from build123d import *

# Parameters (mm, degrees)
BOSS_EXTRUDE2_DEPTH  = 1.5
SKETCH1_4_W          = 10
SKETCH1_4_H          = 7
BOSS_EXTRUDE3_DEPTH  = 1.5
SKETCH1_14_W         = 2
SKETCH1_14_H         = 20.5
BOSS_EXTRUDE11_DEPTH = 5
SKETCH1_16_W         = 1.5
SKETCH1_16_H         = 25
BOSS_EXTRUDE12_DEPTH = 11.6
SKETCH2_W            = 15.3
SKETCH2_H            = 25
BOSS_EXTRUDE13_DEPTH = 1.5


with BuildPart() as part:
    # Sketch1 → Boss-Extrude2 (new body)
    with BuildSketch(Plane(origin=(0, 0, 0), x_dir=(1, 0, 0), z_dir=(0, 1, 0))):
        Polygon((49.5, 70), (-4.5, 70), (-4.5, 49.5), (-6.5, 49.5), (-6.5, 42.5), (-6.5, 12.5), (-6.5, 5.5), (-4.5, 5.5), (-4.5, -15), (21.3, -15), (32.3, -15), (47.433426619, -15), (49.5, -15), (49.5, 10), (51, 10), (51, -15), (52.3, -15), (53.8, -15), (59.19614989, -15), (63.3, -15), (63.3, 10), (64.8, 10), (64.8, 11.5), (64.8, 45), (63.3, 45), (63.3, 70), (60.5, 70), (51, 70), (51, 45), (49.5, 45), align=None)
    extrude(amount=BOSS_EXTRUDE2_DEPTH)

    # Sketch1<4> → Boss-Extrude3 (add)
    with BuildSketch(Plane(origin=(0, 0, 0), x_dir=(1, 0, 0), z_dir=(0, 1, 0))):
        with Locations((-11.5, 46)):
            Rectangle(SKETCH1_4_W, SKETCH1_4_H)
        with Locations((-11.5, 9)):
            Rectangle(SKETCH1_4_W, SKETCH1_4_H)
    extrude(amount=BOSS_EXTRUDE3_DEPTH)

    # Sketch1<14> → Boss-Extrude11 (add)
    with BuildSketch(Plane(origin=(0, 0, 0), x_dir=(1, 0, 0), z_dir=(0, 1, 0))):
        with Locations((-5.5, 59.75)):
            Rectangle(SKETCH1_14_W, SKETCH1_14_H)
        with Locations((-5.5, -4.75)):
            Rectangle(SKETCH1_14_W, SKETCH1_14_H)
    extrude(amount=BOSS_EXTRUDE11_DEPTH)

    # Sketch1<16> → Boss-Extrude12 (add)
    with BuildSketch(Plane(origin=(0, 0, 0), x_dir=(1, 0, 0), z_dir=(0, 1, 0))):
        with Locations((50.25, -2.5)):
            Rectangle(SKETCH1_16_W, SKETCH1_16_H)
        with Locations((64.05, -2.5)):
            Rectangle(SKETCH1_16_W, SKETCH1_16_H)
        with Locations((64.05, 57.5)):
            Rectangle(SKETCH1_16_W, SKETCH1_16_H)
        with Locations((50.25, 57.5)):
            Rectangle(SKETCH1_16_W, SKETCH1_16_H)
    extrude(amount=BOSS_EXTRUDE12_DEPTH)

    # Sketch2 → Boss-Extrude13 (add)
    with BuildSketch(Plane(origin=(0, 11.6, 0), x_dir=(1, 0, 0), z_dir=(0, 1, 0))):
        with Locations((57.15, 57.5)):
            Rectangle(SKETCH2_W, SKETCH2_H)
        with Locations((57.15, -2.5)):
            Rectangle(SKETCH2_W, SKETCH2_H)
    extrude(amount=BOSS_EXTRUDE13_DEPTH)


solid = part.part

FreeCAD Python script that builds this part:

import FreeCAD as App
import Part
import Sketcher

doc = App.newDocument("Part")
body = doc.addObject("PartDesign::Body", "Body")

sketch1 = doc.addObject("Sketcher::SketchObject", "Sketch")
body.addObject(sketch1)
sketch1.AttachmentSupport = (doc.XZ_Plane, [""])
sketch1.MapMode = "FlatFace"
sketch1.addGeometry(Part.LineSegment(App.Vector(49.5, -70, 0), App.Vector(-4.5, -70, 0)), False)
sketch1.addGeometry(Part.LineSegment(App.Vector(-4.5, -70, 0), App.Vector(-4.5, -49.5, 0)), False)
sketch1.addGeometry(Part.LineSegment(App.Vector(-4.5, -49.5, 0), App.Vector(-6.5, -49.5, 0)), False)
sketch1.addGeometry(Part.LineSegment(App.Vector(-6.5, -49.5, 0), App.Vector(-6.5, -5.5, 0)), False)
sketch1.addGeometry(Part.LineSegment(App.Vector(-6.5, -5.5, 0), App.Vector(-4.5, -5.5, 0)), False)
sketch1.addGeometry(Part.LineSegment(App.Vector(-4.5, -5.5, 0), App.Vector(-4.5, 15, 0)), False)
sketch1.addGeometry(Part.LineSegment(App.Vector(-4.5, 15, 0), App.Vector(49.5, 15, 0)), False)
sketch1.addGeometry(Part.LineSegment(App.Vector(49.5, 15, 0), App.Vector(49.5, -10, 0)), False)
sketch1.addGeometry(Part.LineSegment(App.Vector(49.5, -10, 0), App.Vector(51, -10, 0)), False)
sketch1.addGeometry(Part.LineSegment(App.Vector(51, -10, 0), App.Vector(51, 15, 0)), False)
sketch1.addGeometry(Part.LineSegment(App.Vector(51, 15, 0), App.Vector(63.3, 15, 0)), False)
sketch1.addGeometry(Part.LineSegment(App.Vector(63.3, 15, 0), App.Vector(63.3, -10, 0)), False)
sketch1.addGeometry(Part.LineSegment(App.Vector(63.3, -10, 0), App.Vector(64.8, -10, 0)), False)
sketch1.addGeometry(Part.LineSegment(App.Vector(64.8, -10, 0), App.Vector(64.8, -45, 0)), False)
sketch1.addGeometry(Part.LineSegment(App.Vector(64.8, -45, 0), App.Vector(63.3, -45, 0)), False)
sketch1.addGeometry(Part.LineSegment(App.Vector(63.3, -45, 0), App.Vector(63.3, -70, 0)), False)
sketch1.addGeometry(Part.LineSegment(App.Vector(63.3, -70, 0), App.Vector(51, -70, 0)), False)
sketch1.addGeometry(Part.LineSegment(App.Vector(51, -70, 0), App.Vector(51, -45, 0)), False)
sketch1.addGeometry(Part.LineSegment(App.Vector(51, -45, 0), App.Vector(49.5, -45, 0)), False)
sketch1.addGeometry(Part.LineSegment(App.Vector(49.5, -45, 0), App.Vector(49.5, -70, 0)), False)
sketch1.addConstraint(Sketcher.Constraint("Coincident", 0, 2, 1, 1))
sketch1.addConstraint(Sketcher.Constraint("Coincident", 1, 2, 2, 1))
sketch1.addConstraint(Sketcher.Constraint("Coincident", 2, 2, 3, 1))
sketch1.addConstraint(Sketcher.Constraint("Coincident", 3, 2, 4, 1))
sketch1.addConstraint(Sketcher.Constraint("Coincident", 4, 2, 5, 1))
sketch1.addConstraint(Sketcher.Constraint("Coincident", 5, 2, 6, 1))
sketch1.addConstraint(Sketcher.Constraint("Coincident", 6, 2, 7, 1))
sketch1.addConstraint(Sketcher.Constraint("Coincident", 7, 2, 8, 1))
sketch1.addConstraint(Sketcher.Constraint("Coincident", 8, 2, 9, 1))
sketch1.addConstraint(Sketcher.Constraint("Coincident", 9, 2, 10, 1))
sketch1.addConstraint(Sketcher.Constraint("Coincident", 10, 2, 11, 1))
sketch1.addConstraint(Sketcher.Constraint("Coincident", 11, 2, 12, 1))
sketch1.addConstraint(Sketcher.Constraint("Coincident", 12, 2, 13, 1))
sketch1.addConstraint(Sketcher.Constraint("Coincident", 13, 2, 14, 1))
sketch1.addConstraint(Sketcher.Constraint("Coincident", 14, 2, 15, 1))
sketch1.addConstraint(Sketcher.Constraint("Coincident", 15, 2, 16, 1))
sketch1.addConstraint(Sketcher.Constraint("Coincident", 16, 2, 17, 1))
sketch1.addConstraint(Sketcher.Constraint("Coincident", 17, 2, 18, 1))
sketch1.addConstraint(Sketcher.Constraint("Coincident", 18, 2, 19, 1))
sketch1.addConstraint(Sketcher.Constraint("Coincident", 19, 2, 0, 1))
sketch1.addConstraint(Sketcher.Constraint("Horizontal", 0))
sketch1.addConstraint(Sketcher.Constraint("Vertical", 1))
sketch1.addConstraint(Sketcher.Constraint("Horizontal", 2))
sketch1.addConstraint(Sketcher.Constraint("Vertical", 3))
sketch1.addConstraint(Sketcher.Constraint("Horizontal", 4))
sketch1.addConstraint(Sketcher.Constraint("Vertical", 5))
sketch1.addConstraint(Sketcher.Constraint("Horizontal", 6))
sketch1.addConstraint(Sketcher.Constraint("Vertical", 7))
sketch1.addConstraint(Sketcher.Constraint("Horizontal", 8))
sketch1.addConstraint(Sketcher.Constraint("Vertical", 9))
sketch1.addConstraint(Sketcher.Constraint("Horizontal", 10))
sketch1.addConstraint(Sketcher.Constraint("Vertical", 11))
sketch1.addConstraint(Sketcher.Constraint("Horizontal", 12))
sketch1.addConstraint(Sketcher.Constraint("Vertical", 13))
sketch1.addConstraint(Sketcher.Constraint("Horizontal", 14))
sketch1.addConstraint(Sketcher.Constraint("Vertical", 15))
sketch1.addConstraint(Sketcher.Constraint("Horizontal", 16))
sketch1.addConstraint(Sketcher.Constraint("Vertical", 17))
sketch1.addConstraint(Sketcher.Constraint("Horizontal", 18))
sketch1.addConstraint(Sketcher.Constraint("Vertical", 19))
sketch1.addConstraint(Sketcher.Constraint("Horizontal", 6, 2, 9, 2))
sketch1.addConstraint(Sketcher.Constraint("Horizontal", 8, 2, 11, 2))
sketch1.addConstraint(Sketcher.Constraint("Horizontal", 0, 2, 15, 2))
sketch1.addConstraint(Sketcher.Constraint("Horizontal", 14, 2, 17, 2))
sketch1.addConstraint(Sketcher.Constraint("Vertical", 1, 2, 4, 2))
sketch1.addConstraint(Sketcher.Constraint("Vertical", 11, 2, 14, 2))
sketch1.addConstraint(Sketcher.Constraint("Vertical", 9, 2, 16, 2))
sketch1.addConstraint(Sketcher.Constraint("Vertical", 7, 2, 18, 2))
sketch1.addConstraint(Sketcher.Constraint("Equal", 8, 12))
sketch1.addConstraint(Sketcher.Constraint("Equal", 1, 5))
sketch1.addConstraint(Sketcher.Constraint("Equal", 11, 15))
sketch1.addConstraint(Sketcher.Constraint("DistanceX", 0, 2, 0, 1, 54.0))
sketch1.addConstraint(Sketcher.Constraint("DistanceX", 2, 2, 2, 1, 2.0))
sketch1.addConstraint(Sketcher.Constraint("DistanceY", 3, 1, 3, 2, 44.0))
sketch1.addConstraint(Sketcher.Constraint("DistanceY", 7, 2, 7, 1, 25.0))
sketch1.addConstraint(Sketcher.Constraint("DistanceY", 13, 2, 13, 1, 35.0))
sketch1.addConstraint(Sketcher.Constraint("DistanceX", 8, 1, 8, 2, 1.5))
sketch1.addConstraint(Sketcher.Constraint("DistanceX", 10, 1, 10, 2, 12.3))
sketch1.addConstraint(Sketcher.Constraint("DistanceY", 0, 2, -1, 1, 70.0))
sketch1.addConstraint(Sketcher.Constraint("DistanceX", -1, 1, 8, 2, 51.0))
pad1 = doc.addObject("PartDesign::Pad", "Pad")
body.addObject(pad1)
pad1.Profile = sketch1
pad1.Length = 1.5
pad1.Reversed = True

sketch2 = doc.addObject("Sketcher::SketchObject", "Sketch001")
body.addObject(sketch2)
sketch2.AttachmentSupport = (doc.XZ_Plane, [""])
sketch2.MapMode = "FlatFace"
sketch2.addGeometry(Part.LineSegment(App.Vector(-16, -50, 0), App.Vector(-16, -42, 0)), False)
sketch2.addGeometry(Part.LineSegment(App.Vector(-16, -42, 0), App.Vector(-6, -42, 0)), False)
sketch2.addGeometry(Part.LineSegment(App.Vector(-6, -42, 0), App.Vector(-6, -50, 0)), False)
sketch2.addGeometry(Part.LineSegment(App.Vector(-6, -50, 0), App.Vector(-16, -50, 0)), False)
sketch2.addGeometry(Part.LineSegment(App.Vector(-16, -12, 0), App.Vector(-16, -6, 0)), False)
sketch2.addGeometry(Part.LineSegment(App.Vector(-16, -6, 0), App.Vector(-6, -6, 0)), False)
sketch2.addGeometry(Part.LineSegment(App.Vector(-6, -6, 0), App.Vector(-6, -12, 0)), False)
sketch2.addGeometry(Part.LineSegment(App.Vector(-6, -12, 0), App.Vector(-16, -12, 0)), False)
sketch2.addConstraint(Sketcher.Constraint("Coincident", 0, 2, 1, 1))
sketch2.addConstraint(Sketcher.Constraint("Coincident", 1, 2, 2, 1))
sketch2.addConstraint(Sketcher.Constraint("Coincident", 2, 2, 3, 1))
sketch2.addConstraint(Sketcher.Constraint("Coincident", 3, 2, 0, 1))
sketch2.addConstraint(Sketcher.Constraint("Coincident", 4, 2, 5, 1))
sketch2.addConstraint(Sketcher.Constraint("Coincident", 5, 2, 6, 1))
sketch2.addConstraint(Sketcher.Constraint("Coincident", 6, 2, 7, 1))
sketch2.addConstraint(Sketcher.Constraint("Coincident", 7, 2, 4, 1))
sketch2.addConstraint(Sketcher.Constraint("Vertical", 0))
sketch2.addConstraint(Sketcher.Constraint("Horizontal", 1))
sketch2.addConstraint(Sketcher.Constraint("Vertical", 2))
sketch2.addConstraint(Sketcher.Constraint("Horizontal", 3))
sketch2.addConstraint(Sketcher.Constraint("Vertical", 4))
sketch2.addConstraint(Sketcher.Constraint("Horizontal", 5))
sketch2.addConstraint(Sketcher.Constraint("Vertical", 6))
sketch2.addConstraint(Sketcher.Constraint("Horizontal", 7))
sketch2.addConstraint(Sketcher.Constraint("Vertical", 3, 2, 4, 2))
sketch2.addConstraint(Sketcher.Constraint("Vertical", 2, 2, 5, 2))
sketch2.addConstraint(Sketcher.Constraint("Equal", 2, 4))
sketch2.addConstraint(Sketcher.Constraint("DistanceX", 1, 1, 1, 2, 10.0))
sketch2.addConstraint(Sketcher.Constraint("DistanceY", 0, 1, 0, 2, 7.0))
sketch2.addConstraint(Sketcher.Constraint("DistanceY", 0, 2, 4, 2, 37.0))
sketch2.addConstraint(Sketcher.Constraint("DistanceX", 0, 2, -1, 1, 16.5))
sketch2.addConstraint(Sketcher.Constraint("DistanceY", 0, 2, -1, 1, 42.5))
pad2 = doc.addObject("PartDesign::Pad", "Pad001")
body.addObject(pad2)
pad2.Profile = sketch2
pad2.Length = 1.5
pad2.Reversed = True

sketch3 = doc.addObject("Sketcher::SketchObject", "Sketch002")
body.addObject(sketch3)
sketch3.AttachmentSupport = (doc.XZ_Plane, [""])
sketch3.MapMode = "FlatFace"
sketch3.addGeometry(Part.LineSegment(App.Vector(-6.5, -70, 0), App.Vector(-6.5, -49.5, 0)), False)
sketch3.addGeometry(Part.LineSegment(App.Vector(-6.5, -49.5, 0), App.Vector(-4.5, -49.5, 0)), False)
sketch3.addGeometry(Part.LineSegment(App.Vector(-4.5, -49.5, 0), App.Vector(-4.5, -70, 0)), False)
sketch3.addGeometry(Part.LineSegment(App.Vector(-4.5, -70, 0), App.Vector(-6.5, -70, 0)), False)
sketch3.addGeometry(Part.LineSegment(App.Vector(-6.5, -5.5, 0), App.Vector(-6.5, 15, 0)), False)
sketch3.addGeometry(Part.LineSegment(App.Vector(-6.5, 15, 0), App.Vector(-4.5, 15, 0)), False)
sketch3.addGeometry(Part.LineSegment(App.Vector(-4.5, 15, 0), App.Vector(-4.5, -5.5, 0)), False)
sketch3.addGeometry(Part.LineSegment(App.Vector(-4.5, -5.5, 0), App.Vector(-6.5, -5.5, 0)), False)
sketch3.addConstraint(Sketcher.Constraint("Coincident", 0, 2, 1, 1))
sketch3.addConstraint(Sketcher.Constraint("Coincident", 1, 2, 2, 1))
sketch3.addConstraint(Sketcher.Constraint("Coincident", 2, 2, 3, 1))
sketch3.addConstraint(Sketcher.Constraint("Coincident", 3, 2, 0, 1))
sketch3.addConstraint(Sketcher.Constraint("Coincident", 4, 2, 5, 1))
sketch3.addConstraint(Sketcher.Constraint("Coincident", 5, 2, 6, 1))
sketch3.addConstraint(Sketcher.Constraint("Coincident", 6, 2, 7, 1))
sketch3.addConstraint(Sketcher.Constraint("Coincident", 7, 2, 4, 1))
sketch3.addConstraint(Sketcher.Constraint("Vertical", 0))
sketch3.addConstraint(Sketcher.Constraint("Horizontal", 1))
sketch3.addConstraint(Sketcher.Constraint("Vertical", 2))
sketch3.addConstraint(Sketcher.Constraint("Horizontal", 3))
sketch3.addConstraint(Sketcher.Constraint("Vertical", 4))
sketch3.addConstraint(Sketcher.Constraint("Horizontal", 5))
sketch3.addConstraint(Sketcher.Constraint("Vertical", 6))
sketch3.addConstraint(Sketcher.Constraint("Horizontal", 7))
sketch3.addConstraint(Sketcher.Constraint("Vertical", 3, 2, 4, 2))
sketch3.addConstraint(Sketcher.Constraint("Vertical", 2, 2, 5, 2))
sketch3.addConstraint(Sketcher.Constraint("Equal", 2, 4))
sketch3.addConstraint(Sketcher.Constraint("DistanceX", 1, 1, 1, 2, 2.0))
sketch3.addConstraint(Sketcher.Constraint("DistanceY", 0, 1, 0, 2, 20.5))
sketch3.addConstraint(Sketcher.Constraint("DistanceY", 2, 2, -1, 1, 70.0))
sketch3.addConstraint(Sketcher.Constraint("DistanceY", -1, 1, 4, 2, 15.0))
sketch3.addConstraint(Sketcher.Constraint("DistanceX", 0, 2, -1, 1, 6.5))
pad3 = doc.addObject("PartDesign::Pad", "Pad002")
body.addObject(pad3)
pad3.Profile = sketch3
pad3.Length = 5
pad3.Reversed = True

sketch4 = doc.addObject("Sketcher::SketchObject", "Sketch003")
body.addObject(sketch4)
sketch4.AttachmentSupport = (doc.XZ_Plane, [""])
sketch4.MapMode = "FlatFace"
sketch4.addGeometry(Part.LineSegment(App.Vector(49.5, -10, 0), App.Vector(49.5, 15, 0)), False)
sketch4.addGeometry(Part.LineSegment(App.Vector(49.5, 15, 0), App.Vector(51, 15, 0)), False)
sketch4.addGeometry(Part.LineSegment(App.Vector(51, 15, 0), App.Vector(51, -10, 0)), False)
sketch4.addGeometry(Part.LineSegment(App.Vector(51, -10, 0), App.Vector(49.5, -10, 0)), False)
sketch4.addGeometry(Part.LineSegment(App.Vector(63.3, -10, 0), App.Vector(63.3, 15, 0)), False)
sketch4.addGeometry(Part.LineSegment(App.Vector(63.3, 15, 0), App.Vector(64.8, 15, 0)), False)
sketch4.addGeometry(Part.LineSegment(App.Vector(64.8, 15, 0), App.Vector(64.8, -10, 0)), False)
sketch4.addGeometry(Part.LineSegment(App.Vector(64.8, -10, 0), App.Vector(63.3, -10, 0)), False)
sketch4.addGeometry(Part.LineSegment(App.Vector(63.3, -70, 0), App.Vector(63.3, -45, 0)), False)
sketch4.addGeometry(Part.LineSegment(App.Vector(63.3, -45, 0), App.Vector(64.8, -45, 0)), False)
sketch4.addGeometry(Part.LineSegment(App.Vector(64.8, -45, 0), App.Vector(64.8, -70, 0)), False)
sketch4.addGeometry(Part.LineSegment(App.Vector(64.8, -70, 0), App.Vector(63.3, -70, 0)), False)
sketch4.addGeometry(Part.LineSegment(App.Vector(49.5, -70, 0), App.Vector(49.5, -45, 0)), False)
sketch4.addGeometry(Part.LineSegment(App.Vector(49.5, -45, 0), App.Vector(51, -45, 0)), False)
sketch4.addGeometry(Part.LineSegment(App.Vector(51, -45, 0), App.Vector(51, -70, 0)), False)
sketch4.addGeometry(Part.LineSegment(App.Vector(51, -70, 0), App.Vector(49.5, -70, 0)), False)
sketch4.addConstraint(Sketcher.Constraint("Coincident", 0, 2, 1, 1))
sketch4.addConstraint(Sketcher.Constraint("Coincident", 1, 2, 2, 1))
sketch4.addConstraint(Sketcher.Constraint("Coincident", 2, 2, 3, 1))
sketch4.addConstraint(Sketcher.Constraint("Coincident", 3, 2, 0, 1))
sketch4.addConstraint(Sketcher.Constraint("Coincident", 4, 2, 5, 1))
sketch4.addConstraint(Sketcher.Constraint("Coincident", 5, 2, 6, 1))
sketch4.addConstraint(Sketcher.Constraint("Coincident", 6, 2, 7, 1))
sketch4.addConstraint(Sketcher.Constraint("Coincident", 7, 2, 4, 1))
sketch4.addConstraint(Sketcher.Constraint("Coincident", 8, 2, 9, 1))
sketch4.addConstraint(Sketcher.Constraint("Coincident", 9, 2, 10, 1))
sketch4.addConstraint(Sketcher.Constraint("Coincident", 10, 2, 11, 1))
sketch4.addConstraint(Sketcher.Constraint("Coincident", 11, 2, 8, 1))
sketch4.addConstraint(Sketcher.Constraint("Coincident", 12, 2, 13, 1))
sketch4.addConstraint(Sketcher.Constraint("Coincident", 13, 2, 14, 1))
sketch4.addConstraint(Sketcher.Constraint("Coincident", 14, 2, 15, 1))
sketch4.addConstraint(Sketcher.Constraint("Coincident", 15, 2, 12, 1))
sketch4.addConstraint(Sketcher.Constraint("Vertical", 0))
sketch4.addConstraint(Sketcher.Constraint("Horizontal", 1))
sketch4.addConstraint(Sketcher.Constraint("Vertical", 2))
sketch4.addConstraint(Sketcher.Constraint("Horizontal", 3))
sketch4.addConstraint(Sketcher.Constraint("Vertical", 4))
sketch4.addConstraint(Sketcher.Constraint("Horizontal", 5))
sketch4.addConstraint(Sketcher.Constraint("Vertical", 6))
sketch4.addConstraint(Sketcher.Constraint("Horizontal", 7))
sketch4.addConstraint(Sketcher.Constraint("Vertical", 8))
sketch4.addConstraint(Sketcher.Constraint("Horizontal", 9))
sketch4.addConstraint(Sketcher.Constraint("Vertical", 10))
sketch4.addConstraint(Sketcher.Constraint("Horizontal", 11))
sketch4.addConstraint(Sketcher.Constraint("Vertical", 12))
sketch4.addConstraint(Sketcher.Constraint("Horizontal", 13))
sketch4.addConstraint(Sketcher.Constraint("Vertical", 14))
sketch4.addConstraint(Sketcher.Constraint("Horizontal", 15))
sketch4.addConstraint(Sketcher.Constraint("Horizontal", 1, 2, 4, 2))
sketch4.addConstraint(Sketcher.Constraint("Horizontal", 3, 2, 6, 2))
sketch4.addConstraint(Sketcher.Constraint("Horizontal", 9, 2, 12, 2))
sketch4.addConstraint(Sketcher.Constraint("Horizontal", 11, 2, 14, 2))
sketch4.addConstraint(Sketcher.Constraint("Vertical", 7, 2, 8, 2))
sketch4.addConstraint(Sketcher.Constraint("Vertical", 6, 2, 9, 2))
sketch4.addConstraint(Sketcher.Constraint("Vertical", 3, 2, 12, 2))
sketch4.addConstraint(Sketcher.Constraint("Vertical", 2, 2, 13, 2))
sketch4.addConstraint(Sketcher.Constraint("Equal", 3, 5))
sketch4.addConstraint(Sketcher.Constraint("Equal", 6, 8))
sketch4.addConstraint(Sketcher.Constraint("DistanceY", 0, 1, 0, 2, 25.0))
sketch4.addConstraint(Sketcher.Constraint("DistanceX", 1, 1, 1, 2, 1.5))
sketch4.addConstraint(Sketcher.Constraint("DistanceY", -1, 1, 0, 2, 15.0))
sketch4.addConstraint(Sketcher.Constraint("DistanceX", -1, 1, 1, 2, 51.0))
sketch4.addConstraint(Sketcher.Constraint("DistanceY", 8, 2, -1, 1, 45.0))
sketch4.addConstraint(Sketcher.Constraint("DistanceX", -1, 1, 4, 2, 63.3))
pad4 = doc.addObject("PartDesign::Pad", "Pad003")
body.addObject(pad4)
pad4.Profile = sketch4
pad4.Length = 11.6
pad4.Reversed = True

sketch5 = doc.addObject("Sketcher::SketchObject", "Sketch004")
body.addObject(sketch5)
sketch5.AttachmentSupport = (doc.XZ_Plane, [""])
sketch5.MapMode = "FlatFace"
sketch5.AttachmentOffset = App.Placement(App.Vector(0, 0, -11.6), App.Rotation())
sketch5.addGeometry(Part.LineSegment(App.Vector(50, -70, 0), App.Vector(50, -45, 0)), False)
sketch5.addGeometry(Part.LineSegment(App.Vector(50, -45, 0), App.Vector(65, -45, 0)), False)
sketch5.addGeometry(Part.LineSegment(App.Vector(65, -45, 0), App.Vector(65, -70, 0)), False)
sketch5.addGeometry(Part.LineSegment(App.Vector(65, -70, 0), App.Vector(50, -70, 0)), False)
sketch5.addGeometry(Part.LineSegment(App.Vector(50, -10, 0), App.Vector(50, 15, 0)), False)
sketch5.addGeometry(Part.LineSegment(App.Vector(50, 15, 0), App.Vector(65, 15, 0)), False)
sketch5.addGeometry(Part.LineSegment(App.Vector(65, 15, 0), App.Vector(65, -10, 0)), False)
sketch5.addGeometry(Part.LineSegment(App.Vector(65, -10, 0), App.Vector(50, -10, 0)), False)
sketch5.addConstraint(Sketcher.Constraint("Coincident", 0, 2, 1, 1))
sketch5.addConstraint(Sketcher.Constraint("Coincident", 1, 2, 2, 1))
sketch5.addConstraint(Sketcher.Constraint("Coincident", 2, 2, 3, 1))
sketch5.addConstraint(Sketcher.Constraint("Coincident", 3, 2, 0, 1))
sketch5.addConstraint(Sketcher.Constraint("Coincident", 4, 2, 5, 1))
sketch5.addConstraint(Sketcher.Constraint("Coincident", 5, 2, 6, 1))
sketch5.addConstraint(Sketcher.Constraint("Coincident", 6, 2, 7, 1))
sketch5.addConstraint(Sketcher.Constraint("Coincident", 7, 2, 4, 1))
sketch5.addConstraint(Sketcher.Constraint("Vertical", 0))
sketch5.addConstraint(Sketcher.Constraint("Horizontal", 1))
sketch5.addConstraint(Sketcher.Constraint("Vertical", 2))
sketch5.addConstraint(Sketcher.Constraint("Horizontal", 3))
sketch5.addConstraint(Sketcher.Constraint("Vertical", 4))
sketch5.addConstraint(Sketcher.Constraint("Horizontal", 5))
sketch5.addConstraint(Sketcher.Constraint("Vertical", 6))
sketch5.addConstraint(Sketcher.Constraint("Horizontal", 7))
sketch5.addConstraint(Sketcher.Constraint("Vertical", 3, 2, 4, 2))
sketch5.addConstraint(Sketcher.Constraint("Vertical", 2, 2, 5, 2))
sketch5.addConstraint(Sketcher.Constraint("Equal", 2, 4))
sketch5.addConstraint(Sketcher.Constraint("DistanceY", 0, 1, 0, 2, 25.0))
sketch5.addConstraint(Sketcher.Constraint("DistanceX", 1, 1, 1, 2, 15.3))
sketch5.addConstraint(Sketcher.Constraint("DistanceY", 0, 2, -1, 1, 45.0))
sketch5.addConstraint(Sketcher.Constraint("DistanceY", -1, 1, 4, 2, 15.0))
sketch5.addConstraint(Sketcher.Constraint("DistanceX", -1, 1, 0, 2, 49.5))
pad5 = doc.addObject("PartDesign::Pad", "Pad004")
body.addObject(pad5)
pad5.Profile = sketch5
pad5.Length = 1.5
pad5.Reversed = True

doc.recompute()
